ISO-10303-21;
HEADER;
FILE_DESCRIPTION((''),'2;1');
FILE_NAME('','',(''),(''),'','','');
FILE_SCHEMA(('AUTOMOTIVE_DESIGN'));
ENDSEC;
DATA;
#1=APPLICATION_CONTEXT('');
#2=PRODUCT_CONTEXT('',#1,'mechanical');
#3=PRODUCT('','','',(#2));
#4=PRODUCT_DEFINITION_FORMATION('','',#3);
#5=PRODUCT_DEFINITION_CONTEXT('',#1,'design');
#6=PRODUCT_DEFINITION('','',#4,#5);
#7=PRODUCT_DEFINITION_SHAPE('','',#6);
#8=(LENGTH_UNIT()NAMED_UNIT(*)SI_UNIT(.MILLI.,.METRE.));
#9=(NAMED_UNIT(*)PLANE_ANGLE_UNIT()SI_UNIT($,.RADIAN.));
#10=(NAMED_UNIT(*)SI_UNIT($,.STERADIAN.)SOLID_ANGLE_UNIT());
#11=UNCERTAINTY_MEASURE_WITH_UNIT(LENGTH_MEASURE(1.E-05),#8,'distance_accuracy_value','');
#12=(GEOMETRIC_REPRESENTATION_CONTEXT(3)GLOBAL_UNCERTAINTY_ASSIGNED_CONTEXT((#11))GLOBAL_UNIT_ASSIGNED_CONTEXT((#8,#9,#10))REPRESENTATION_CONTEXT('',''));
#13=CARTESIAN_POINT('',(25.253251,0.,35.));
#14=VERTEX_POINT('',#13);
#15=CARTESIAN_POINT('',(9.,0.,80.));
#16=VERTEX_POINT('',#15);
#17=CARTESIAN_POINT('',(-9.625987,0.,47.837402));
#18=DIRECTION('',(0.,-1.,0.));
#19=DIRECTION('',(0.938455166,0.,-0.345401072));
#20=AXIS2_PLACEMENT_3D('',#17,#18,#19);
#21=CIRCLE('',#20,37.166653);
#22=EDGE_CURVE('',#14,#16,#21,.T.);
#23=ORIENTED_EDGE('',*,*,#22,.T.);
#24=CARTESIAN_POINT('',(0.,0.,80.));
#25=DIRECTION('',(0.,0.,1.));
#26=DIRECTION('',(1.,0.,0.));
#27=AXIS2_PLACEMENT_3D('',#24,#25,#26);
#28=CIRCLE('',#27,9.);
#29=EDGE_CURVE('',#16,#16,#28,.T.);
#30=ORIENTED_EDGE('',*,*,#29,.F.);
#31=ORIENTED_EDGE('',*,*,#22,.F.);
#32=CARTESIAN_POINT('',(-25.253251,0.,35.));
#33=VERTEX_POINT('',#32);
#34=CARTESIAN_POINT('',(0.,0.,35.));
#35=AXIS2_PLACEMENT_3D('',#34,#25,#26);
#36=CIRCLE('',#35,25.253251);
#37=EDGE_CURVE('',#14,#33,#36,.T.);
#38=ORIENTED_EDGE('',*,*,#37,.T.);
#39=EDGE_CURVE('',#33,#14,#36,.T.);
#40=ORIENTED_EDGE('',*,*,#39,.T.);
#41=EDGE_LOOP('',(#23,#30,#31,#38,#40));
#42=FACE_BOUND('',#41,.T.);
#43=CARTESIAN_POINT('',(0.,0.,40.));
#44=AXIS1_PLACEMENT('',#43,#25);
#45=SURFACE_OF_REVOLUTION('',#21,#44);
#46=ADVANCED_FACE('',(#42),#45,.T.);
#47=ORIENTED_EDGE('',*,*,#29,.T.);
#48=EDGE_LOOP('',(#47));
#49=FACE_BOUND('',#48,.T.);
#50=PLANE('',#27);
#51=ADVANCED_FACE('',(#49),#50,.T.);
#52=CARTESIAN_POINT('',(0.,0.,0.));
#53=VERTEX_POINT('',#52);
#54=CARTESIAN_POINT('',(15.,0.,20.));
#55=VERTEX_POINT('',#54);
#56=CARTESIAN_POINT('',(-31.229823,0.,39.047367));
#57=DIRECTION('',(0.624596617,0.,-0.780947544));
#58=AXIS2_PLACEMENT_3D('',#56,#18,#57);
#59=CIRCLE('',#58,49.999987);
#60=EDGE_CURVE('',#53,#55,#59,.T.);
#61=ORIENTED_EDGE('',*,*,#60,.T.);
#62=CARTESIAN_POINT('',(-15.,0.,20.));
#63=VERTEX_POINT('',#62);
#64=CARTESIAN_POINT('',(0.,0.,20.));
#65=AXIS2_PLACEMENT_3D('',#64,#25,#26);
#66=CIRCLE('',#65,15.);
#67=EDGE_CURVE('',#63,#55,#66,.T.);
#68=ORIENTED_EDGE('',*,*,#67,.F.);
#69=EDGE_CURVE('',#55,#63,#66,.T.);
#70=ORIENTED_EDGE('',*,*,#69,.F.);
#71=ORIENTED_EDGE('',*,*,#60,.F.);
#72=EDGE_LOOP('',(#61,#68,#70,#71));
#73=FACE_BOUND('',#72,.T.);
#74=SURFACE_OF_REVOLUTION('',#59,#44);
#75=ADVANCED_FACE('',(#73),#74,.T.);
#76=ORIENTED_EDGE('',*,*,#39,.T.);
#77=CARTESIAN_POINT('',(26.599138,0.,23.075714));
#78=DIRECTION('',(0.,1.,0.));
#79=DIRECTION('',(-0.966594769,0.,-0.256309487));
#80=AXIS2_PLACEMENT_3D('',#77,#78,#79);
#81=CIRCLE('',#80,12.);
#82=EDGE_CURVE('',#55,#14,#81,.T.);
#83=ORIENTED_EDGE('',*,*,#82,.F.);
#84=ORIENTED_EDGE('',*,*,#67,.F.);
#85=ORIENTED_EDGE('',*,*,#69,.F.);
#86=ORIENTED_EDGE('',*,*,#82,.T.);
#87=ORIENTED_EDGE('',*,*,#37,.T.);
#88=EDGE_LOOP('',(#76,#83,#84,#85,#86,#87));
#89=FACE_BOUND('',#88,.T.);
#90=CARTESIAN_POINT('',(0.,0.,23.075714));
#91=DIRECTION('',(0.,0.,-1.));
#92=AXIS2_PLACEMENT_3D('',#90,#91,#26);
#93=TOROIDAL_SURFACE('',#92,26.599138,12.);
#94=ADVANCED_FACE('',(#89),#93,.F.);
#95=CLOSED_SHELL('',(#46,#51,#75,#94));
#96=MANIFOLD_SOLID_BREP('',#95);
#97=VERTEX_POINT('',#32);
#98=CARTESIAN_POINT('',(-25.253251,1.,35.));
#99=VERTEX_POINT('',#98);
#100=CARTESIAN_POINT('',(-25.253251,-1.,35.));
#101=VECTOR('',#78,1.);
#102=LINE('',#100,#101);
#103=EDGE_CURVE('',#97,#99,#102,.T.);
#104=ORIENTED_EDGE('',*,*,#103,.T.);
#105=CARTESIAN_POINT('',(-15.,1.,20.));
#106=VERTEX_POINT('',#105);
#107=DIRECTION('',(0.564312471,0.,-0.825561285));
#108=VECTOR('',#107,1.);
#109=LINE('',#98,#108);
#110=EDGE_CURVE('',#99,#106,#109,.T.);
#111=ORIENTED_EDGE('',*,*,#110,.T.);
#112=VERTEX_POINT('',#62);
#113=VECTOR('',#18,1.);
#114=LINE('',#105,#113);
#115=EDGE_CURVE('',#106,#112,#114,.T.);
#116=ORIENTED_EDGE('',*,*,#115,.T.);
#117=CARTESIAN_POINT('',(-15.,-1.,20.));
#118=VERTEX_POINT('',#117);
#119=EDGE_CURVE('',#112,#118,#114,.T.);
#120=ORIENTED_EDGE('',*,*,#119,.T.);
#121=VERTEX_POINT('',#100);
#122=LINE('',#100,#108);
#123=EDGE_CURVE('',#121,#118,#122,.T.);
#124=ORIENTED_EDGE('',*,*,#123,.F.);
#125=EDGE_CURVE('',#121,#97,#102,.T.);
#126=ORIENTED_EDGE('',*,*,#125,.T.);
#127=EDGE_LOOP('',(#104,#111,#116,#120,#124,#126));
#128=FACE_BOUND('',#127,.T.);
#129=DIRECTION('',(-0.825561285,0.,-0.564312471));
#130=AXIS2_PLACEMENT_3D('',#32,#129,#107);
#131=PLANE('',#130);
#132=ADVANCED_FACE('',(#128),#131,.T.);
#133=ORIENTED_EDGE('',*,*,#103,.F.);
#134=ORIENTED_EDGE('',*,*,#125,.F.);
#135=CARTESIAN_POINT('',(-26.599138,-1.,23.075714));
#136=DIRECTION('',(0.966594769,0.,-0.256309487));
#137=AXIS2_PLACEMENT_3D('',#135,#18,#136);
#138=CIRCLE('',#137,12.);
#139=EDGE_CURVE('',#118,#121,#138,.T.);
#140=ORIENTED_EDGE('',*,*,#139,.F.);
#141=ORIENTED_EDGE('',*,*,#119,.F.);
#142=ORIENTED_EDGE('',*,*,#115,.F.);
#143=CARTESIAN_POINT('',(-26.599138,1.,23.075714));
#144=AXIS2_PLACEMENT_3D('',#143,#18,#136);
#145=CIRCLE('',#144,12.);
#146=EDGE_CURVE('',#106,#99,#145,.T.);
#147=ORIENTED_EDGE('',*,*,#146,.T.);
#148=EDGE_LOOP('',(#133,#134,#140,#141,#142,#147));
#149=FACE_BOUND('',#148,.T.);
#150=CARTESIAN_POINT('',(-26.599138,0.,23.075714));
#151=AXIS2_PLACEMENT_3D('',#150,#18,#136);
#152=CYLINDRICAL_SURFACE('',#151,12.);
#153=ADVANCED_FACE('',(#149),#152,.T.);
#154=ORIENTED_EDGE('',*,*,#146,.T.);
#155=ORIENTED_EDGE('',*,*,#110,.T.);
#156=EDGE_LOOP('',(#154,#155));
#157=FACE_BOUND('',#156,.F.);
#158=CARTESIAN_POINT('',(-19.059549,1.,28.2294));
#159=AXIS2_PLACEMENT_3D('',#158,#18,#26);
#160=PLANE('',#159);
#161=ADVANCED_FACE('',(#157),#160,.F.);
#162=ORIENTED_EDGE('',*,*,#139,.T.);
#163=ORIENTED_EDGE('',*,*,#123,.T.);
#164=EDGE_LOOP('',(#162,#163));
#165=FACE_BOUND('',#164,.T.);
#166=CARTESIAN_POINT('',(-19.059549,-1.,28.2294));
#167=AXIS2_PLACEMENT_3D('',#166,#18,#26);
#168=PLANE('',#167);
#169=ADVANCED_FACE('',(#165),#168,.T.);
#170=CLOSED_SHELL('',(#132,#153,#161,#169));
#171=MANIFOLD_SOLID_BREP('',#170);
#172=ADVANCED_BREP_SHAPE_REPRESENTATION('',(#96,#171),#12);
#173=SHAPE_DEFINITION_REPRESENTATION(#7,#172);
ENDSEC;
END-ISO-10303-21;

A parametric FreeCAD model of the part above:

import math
import FreeCAD as App
import Part
import Sketcher

V = App.Vector

doc = App.newDocument("Part")
params = doc.addObject("Spreadsheet::Sheet", "Params")
for row, (alias, value) in enumerate([
    ("sketch1_radius", "12 mm"),
    ("sketch1_width", "9 mm"),
    ("sketch1_height", "80 mm"),
    ("revolution_angle", "360 deg"),
    ("sketch2_radius", "12 mm"),
    ("pad1_length", "2 mm"),
], start=1):
    params.set(f"A{row}", alias)
    params.set(f"B{row}", "=" + value)
    params.setAlias(f"B{row}", alias)

body = doc.addObject("PartDesign::Body", "Body")
body.AllowCompound = True

# Sketch on XZ plane
sketch1 = body.newObject("Sketcher::SketchObject", "Sketch")
sketch1.AttachmentSupport = (doc.getObject("XZ_Plane"), [""])
sketch1.MapMode = "FlatFace"
sketch1.addGeometry([
    Part.ArcOfCircle(Part.Circle(V(-31.229823, 39.047367, 0), V(0, 0, 1), 49.999987), math.radians(-51.347414), math.radians(-22.392382)),  # 0
    Part.ArcOfCircle(Part.Circle(V(26.599138, 23.075714, 0), V(0, 0, 1), 12), math.radians(96.439684), math.radians(194.851192)),  # 1
    Part.ArcOfCircle(Part.Circle(V(-9.625987, 47.837402, 0), V(0, 0, 1), 37.166653), math.radians(-20.206281), math.radians(59.924033)),  # 2
    Part.LineSegment(V(9, 80, 0), V(0, 80, 0)),  # 3
    Part.LineSegment(V(0, 80, 0), V(0, 0, 0)),  # 4
], False)
sketch1.addConstraint([
    Sketcher.Constraint("Coincident", 0, 2, 1, 2),
    Sketcher.Constraint("Coincident", 1, 1, 2, 1),
    Sketcher.Constraint("Coincident", 2, 2, 3, 1),
    Sketcher.Constraint("Coincident", 3, 2, 4, 1),
    Sketcher.Constraint("Coincident", 4, 2, 0, 1),
    Sketcher.Constraint("Horizontal", 3),
    Sketcher.Constraint("Vertical", 4),
    Sketcher.Constraint("Coincident", 4, 2, -1, 1),
    Sketcher.Constraint("Radius", 1, 12.0),
    Sketcher.Constraint("DistanceX", 3, 2, 3, 1, 9.0),
    Sketcher.Constraint("DistanceY", 4, 2, 4, 1, 80.0),
    Sketcher.Constraint("DistanceX", -1, 1, 0, 2, 15.0),
    Sketcher.Constraint("DistanceY", -1, 1, 0, 2, 20.0),
    Sketcher.Constraint("DistanceY", -1, 1, 1, 1, 35.0),
    Sketcher.Constraint("Radius", 0, 49.999987),
    Sketcher.Constraint("Radius", 2, 37.166653),
    Sketcher.Constraint("DistanceY", -1, 1, 2, 3, 47.837402),
])
sketch1.setExpression("Constraints[8]", "Params.sketch1_radius")
sketch1.setExpression("Constraints[9]", "Params.sketch1_width")
sketch1.setExpression("Constraints[10]", "Params.sketch1_height")
revolution = body.newObject("PartDesign::Revolution", "Revolution")
revolution.Profile = sketch1
revolution.ReferenceAxis = (sketch1, ["V_Axis"])
revolution.setExpression("Angle", "Params.revolution_angle")

# Sketch on XZ plane
sketch2 = body.newObject("Sketcher::SketchObject", "Sketch001")
sketch2.AttachmentSupport = (doc.getObject("XZ_Plane"), [""])
sketch2.MapMode = "FlatFace"
sketch2.addGeometry([
    Part.LineSegment(V(-25.253251, 35, 0), V(-15, 20, 0)),
    Part.ArcOfCircle(Part.Circle(V(-26.599138, 23.075714, 0), V(0, 0, 1), 12), math.radians(-14.851192), math.radians(83.560316)),
], False)
sketch2.addConstraint([
    Sketcher.Constraint("Coincident", 0, 1, 1, 2),
    Sketcher.Constraint("Coincident", 1, 1, 0, 2),
    Sketcher.Constraint("Radius", 1, 12.0),
    Sketcher.Constraint("DistanceY", -1, 1, 0, 1, 35.0),
    Sketcher.Constraint("DistanceX", 1, 1, -1, 1, 15.0),
    Sketcher.Constraint("DistanceY", -1, 1, 1, 1, 20.0),
    Sketcher.Constraint("DistanceX", 0, 1, -1, 1, 25.253251),
])
sketch2.setExpression("Constraints[2]", "Params.sketch2_radius")
pad1 = body.newObject("PartDesign::Pad", "Pad")
pad1.Profile = sketch2
pad1.setExpression("Length", "Params.pad1_length")
pad1.Midplane = True

doc.recompute()
